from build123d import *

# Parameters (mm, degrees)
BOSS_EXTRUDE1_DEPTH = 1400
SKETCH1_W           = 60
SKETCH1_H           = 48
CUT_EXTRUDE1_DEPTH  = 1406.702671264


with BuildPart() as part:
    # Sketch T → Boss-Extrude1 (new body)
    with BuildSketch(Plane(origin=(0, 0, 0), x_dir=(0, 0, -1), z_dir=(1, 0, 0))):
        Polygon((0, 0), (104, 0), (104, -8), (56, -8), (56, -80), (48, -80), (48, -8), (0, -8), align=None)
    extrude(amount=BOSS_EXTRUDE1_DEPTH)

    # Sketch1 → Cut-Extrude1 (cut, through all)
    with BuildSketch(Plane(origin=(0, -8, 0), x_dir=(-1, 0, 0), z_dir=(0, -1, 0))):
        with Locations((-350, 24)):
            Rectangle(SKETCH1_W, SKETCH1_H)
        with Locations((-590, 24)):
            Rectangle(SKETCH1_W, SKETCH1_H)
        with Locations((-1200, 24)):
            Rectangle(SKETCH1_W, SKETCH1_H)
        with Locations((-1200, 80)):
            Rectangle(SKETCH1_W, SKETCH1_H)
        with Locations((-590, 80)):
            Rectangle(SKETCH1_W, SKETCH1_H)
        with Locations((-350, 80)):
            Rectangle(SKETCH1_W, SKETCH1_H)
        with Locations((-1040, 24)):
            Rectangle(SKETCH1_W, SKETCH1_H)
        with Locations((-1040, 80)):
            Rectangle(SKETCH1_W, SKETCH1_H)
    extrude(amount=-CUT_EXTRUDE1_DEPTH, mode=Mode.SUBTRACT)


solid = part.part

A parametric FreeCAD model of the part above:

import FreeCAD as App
import Part
import Sketcher

V = App.Vector
Q = App.Units.Quantity

doc = App.newDocument("Part")
params = doc.addObject("Spreadsheet::Sheet", "Params")
for row, (alias, value) in enumerate([
    ("sketch1_width", "8 mm"),
    ("sketch1_width2", "72 mm"),
    ("sketch1_height", "104 mm"),
    ("pad1_length", "1400 mm"),
    ("sketch2_width", "60 mm"),
    ("sketch2_height", "48 mm"),
], start=1):
    params.set(f"A{row}", alias)
    params.set(f"B{row}", "=" + value)
    params.setAlias(f"B{row}", alias)

body = doc.addObject("PartDesign::Body", "Body")

sketch1 = body.newObject("Sketcher::SketchObject", "Sketch")
sketch1.AttachmentSupport = (doc.getObject("YZ_Plane"), [""])
sketch1.MapMode = "FlatFace"
sketch1.addGeometry([
    Part.LineSegment(V(0, -104, 0), V(0, 0, 0)),
    Part.LineSegment(V(0, 0, 0), V(-8, 0, 0)),
    Part.LineSegment(V(-8, 0, 0), V(-8, -48, 0)),
    Part.LineSegment(V(-8, -48, 0), V(-80, -48, 0)),
    Part.LineSegment(V(-80, -48, 0), V(-80, -56, 0)),
    Part.LineSegment(V(-80, -56, 0), V(-8, -56, 0)),
    Part.LineSegment(V(-8, -56, 0), V(-8, -104, 0)),
    Part.LineSegment(V(-8, -104, 0), V(0, -104, 0)),
], False)
sketch1.addConstraint([
    Sketcher.Constraint("Coincident", 0, 2, 1, 1),
    Sketcher.Constraint("Coincident", 1, 2, 2, 1),
    Sketcher.Constraint("Coincident", 2, 2, 3, 1),
    Sketcher.Constraint("Coincident", 3, 2, 4, 1),
    Sketcher.Constraint("Coincident", 4, 2, 5, 1),
    Sketcher.Constraint("Coincident", 5, 2, 6, 1),
    Sketcher.Constraint("Coincident", 6, 2, 7, 1),
    Sketcher.Constraint("Coincident", 7, 2, 0, 1),
    Sketcher.Constraint("Vertical", 0),
    Sketcher.Constraint("Horizontal", 1),
    Sketcher.Constraint("Vertical", 2),
    Sketcher.Constraint("Horizontal", 3),
    Sketcher.Constraint("Vertical", 4),
    Sketcher.Constraint("Horizontal", 5),
    Sketcher.Constraint("Vertical", 6),
    Sketcher.Constraint("Horizontal", 7),
    Sketcher.Constraint("Coincident", 0, 2, -1, 1),
    Sketcher.Constraint("Vertical", 2, 2, 5, 2),
    Sketcher.Constraint("Equal", 7, 4),
    Sketcher.Constraint("Equal", 2, 6),
    Sketcher.Constraint("DistanceX", 1, 2, 1, 1, Q("8 mm")),
    Sketcher.Constraint("DistanceX", 3, 2, 3, 1, Q("72 mm")),
    Sketcher.Constraint("DistanceY", 0, 1, 0, 2, Q("104 mm")),
])
sketch1.setExpression("Constraints[20]", "Params.sketch1_width")
sketch1.setExpression("Constraints[21]", "Params.sketch1_width2")
sketch1.setExpression("Constraints[22]", "Params.sketch1_height")
pad1 = body.newObject("PartDesign::Pad", "Pad")
pad1.Profile = sketch1
pad1.setExpression("Length", "Params.pad1_length")

sketch2 = body.newObject("Sketcher::SketchObject", "Sketch001")
sketch2.AttachmentSupport = (doc.getObject("XZ_Plane"), [""])
sketch2.MapMode = "FlatFace"
sketch2.AttachmentOffset = App.Placement(V(0, 0, 8), App.Rotation())
sketch2.addGeometry([
    Part.LineSegment(V(380, -48, 0), V(380, 0, 0)),
    Part.LineSegment(V(380, 0, 0), V(320, 0, 0)),
    Part.LineSegment(V(320, 0, 0), V(320, -48, 0)),
    Part.LineSegment(V(320, -48, 0), V(380, -48, 0)),
    Part.LineSegment(V(620, -48, 0), V(620, 0, 0)),
    Part.LineSegment(V(620, 0, 0), V(560, 0, 0)),
    Part.LineSegment(V(560, 0, 0), V(560, -48, 0)),
    Part.LineSegment(V(560, -48, 0), V(620, -48, 0)),
    Part.LineSegment(V(1230, -48, 0), V(1230, 0, 0)),
    Part.LineSegment(V(1230, 0, 0), V(1170, 0, 0)),
    Part.LineSegment(V(1170, 0, 0), V(1170, -48, 0)),
    Part.LineSegment(V(1170, -48, 0), V(1230, -48, 0)),
    Part.LineSegment(V(1230, -104, 0), V(1230, -56, 0)),
    Part.LineSegment(V(1230, -56, 0), V(1170, -56, 0)),
    Part.LineSegment(V(1170, -56, 0), V(1170, -104, 0)),
    Part.LineSegment(V(1170, -104, 0), V(1230, -104, 0)),
    Part.LineSegment(V(620, -104, 0), V(620, -56, 0)),
    Part.LineSegment(V(620, -56, 0), V(560, -56, 0)),
    Part.LineSegment(V(560, -56, 0), V(560, -104, 0)),
    Part.LineSegment(V(560, -104, 0), V(620, -104, 0)),
    Part.LineSegment(V(380, -104, 0), V(380, -56, 0)),
    Part.LineSegment(V(380, -56, 0), V(320, -56, 0)),
    Part.LineSegment(V(320, -56, 0), V(320, -104, 0)),
    Part.LineSegment(V(320, -104, 0), V(380, -104, 0)),
    Part.LineSegment(V(1070, -48, 0), V(1070, 0, 0)),
    Part.LineSegment(V(1070, 0, 0), V(1010, 0, 0)),
    Part.LineSegment(V(1010, 0, 0), V(1010, -48, 0)),
    Part.LineSegment(V(1010, -48, 0), V(1070, -48, 0)),
    Part.LineSegment(V(1070, -104, 0), V(1070, -56, 0)),
    Part.LineSegment(V(1070, -56, 0), V(1010, -56, 0)),
    Part.LineSegment(V(1010, -56, 0), V(1010, -104, 0)),
    Part.LineSegment(V(1010, -104, 0), V(1070, -104, 0)),
], False)
sketch2.addConstraint([
    Sketcher.Constraint("Coincident", 0, 2, 1, 1),
    Sketcher.Constraint("Coincident", 1, 2, 2, 1),
    Sketcher.Constraint("Coincident", 2, 2, 3, 1),
    Sketcher.Constraint("Coincident", 3, 2, 0, 1),
    Sketcher.Constraint("Coincident", 4, 2, 5, 1),
    Sketcher.Constraint("Coincident", 5, 2, 6, 1),
    Sketcher.Constraint("Coincident", 6, 2, 7, 1),
    Sketcher.Constraint("Coincident", 7, 2, 4, 1),
    Sketcher.Constraint("Coincident", 8, 2, 9, 1),
    Sketcher.Constraint("Coincident", 9, 2, 10, 1),
    Sketcher.Constraint("Coincident", 10, 2, 11, 1),
    Sketcher.Constraint("Coincident", 11, 2, 8, 1),
    Sketcher.Constraint("Coincident", 12, 2, 13, 1),
    Sketcher.Constraint("Coincident", 13, 2, 14, 1),
    Sketcher.Constraint("Coincident", 14, 2, 15, 1),
    Sketcher.Constraint("Coincident", 15, 2, 12, 1),
    Sketcher.Constraint("Coincident", 16, 2, 17, 1),
    Sketcher.Constraint("Coincident", 17, 2, 18, 1),
    Sketcher.Constraint("Coincident", 18, 2, 19, 1),
    Sketcher.Constraint("Coincident", 19, 2, 16, 1),
    Sketcher.Constraint("Coincident", 20, 2, 21, 1),
    Sketcher.Constraint("Coincident", 21, 2, 22, 1),
    Sketcher.Constraint("Coincident", 22, 2, 23, 1),
    Sketcher.Constraint("Coincident", 23, 2, 20, 1),
    Sketcher.Constraint("Coincident", 24, 2, 25, 1),
    Sketcher.Constraint("Coincident", 25, 2, 26, 1),
    Sketcher.Constraint("Coincident", 26, 2, 27, 1),
    Sketcher.Constraint("Coincident", 27, 2, 24, 1),
    Sketcher.Constraint("Coincident", 28, 2, 29, 1),
    Sketcher.Constraint("Coincident", 29, 2, 30, 1),
    Sketcher.Constraint("Coincident", 30, 2, 31, 1),
    Sketcher.Constraint("Coincident", 31, 2, 28, 1),
    Sketcher.Constraint("Vertical", 0),
    Sketcher.Constraint("Horizontal", 1),
    Sketcher.Constraint("Vertical", 2),
    Sketcher.Constraint("Horizontal", 3),
    Sketcher.Constraint("Vertical", 4),
    Sketcher.Constraint("Horizontal", 5),
    Sketcher.Constraint("Vertical", 6),
    Sketcher.Constraint("Horizontal", 7),
    Sketcher.Constraint("Vertical", 8),
    Sketcher.Constraint("Horizontal", 9),
    Sketcher.Constraint("Vertical", 10),
    Sketcher.Constraint("Horizontal", 11),
    Sketcher.Constraint("Vertical", 12),
    Sketcher.Constraint("Horizontal", 13),
    Sketcher.Constraint("Vertical", 14),
    Sketcher.Constraint("Horizontal", 15),
    Sketcher.Constraint("Vertical", 16),
    Sketcher.Constraint("Horizontal", 17),
    Sketcher.Constraint("Vertical", 18),
    Sketcher.Constraint("Horizontal", 19),
    Sketcher.Constraint("Vertical", 20),
    Sketcher.Constraint("Horizontal", 21),
    Sketcher.Constraint("Vertical", 22),
    Sketcher.Constraint("Horizontal", 23),
    Sketcher.Constraint("Vertical", 24),
    Sketcher.Constraint("Horizontal", 25),
    Sketcher.Constraint("Vertical", 26),
    Sketcher.Constraint("Horizontal", 27),
    Sketcher.Constraint("Vertical", 28),
    Sketcher.Constraint("Horizontal", 29),
    Sketcher.Constraint("Vertical", 30),
    Sketcher.Constraint("Horizontal", 31),
    Sketcher.Constraint("PointOnObject", 0, 2, -1),
    Sketcher.Constraint("PointOnObject", 4, 2, -1),
    Sketcher.Constraint("PointOnObject", 8, 2, -1),
    Sketcher.Constraint("PointOnObject", 24, 2, -1),
    Sketcher.Constraint("Horizontal", 3, 2, 6, 2),
    Sketcher.Constraint("Horizontal", 7, 2, 10, 2),
    Sketcher.Constraint("Horizontal", 13, 2, 16, 2),
    Sketcher.Constraint("Horizontal", 15, 2, 18, 2),
    Sketcher.Constraint("Horizontal", 17, 2, 20, 2),
    Sketcher.Constraint("Horizontal", 19, 2, 22, 2),
    Sketcher.Constraint("Horizontal", 11, 2, 26, 2),
    Sketcher.Constraint("Horizontal", 21, 2, 28, 2),
    Sketcher.Constraint("Horizontal", 23, 2, 30, 2),
    Sketcher.Constraint("Vertical", 11, 2, 12, 2),
    Sketcher.Constraint("Vertical", 10, 2, 13, 2),
    Sketcher.Constraint("Vertical", 7, 2, 16, 2),
    Sketcher.Constraint("Vertical", 6, 2, 17, 2),
    Sketcher.Constraint("Vertical", 3, 2, 20, 2),
    Sketcher.Constraint("Vertical", 2, 2, 21, 2),
    Sketcher.Constraint("Vertical", 27, 2, 28, 2),
    Sketcher.Constraint("Vertical", 26, 2, 29, 2),
    Sketcher.Constraint("Equal", 3, 5),
    Sketcher.Constraint("Equal", 7, 9),
    Sketcher.Constraint("Equal", 23, 25),
    Sketcher.Constraint("Equal", 10, 12),
    Sketcher.Constraint("DistanceX", 1, 2, 1, 1, Q("60 mm")),
    Sketcher.Constraint("DistanceY", 0, 1, 0, 2, Q("48 mm")),
    Sketcher.Constraint("DistanceX", -1, 1, 0, 2, Q("380 mm")),
    Sketcher.Constraint("DistanceX", -1, 1, 4, 2, Q("620 mm")),
    Sketcher.Constraint("DistanceX", -1, 1, 8, 2, Q("1230 mm")),
    Sketcher.Constraint("DistanceY", 12, 2, -1, 1, Q("56 mm")),
    Sketcher.Constraint("DistanceX", -1, 1, 24, 2, Q("1070 mm")),
])
sketch2.setExpression("Constraints[89]", "Params.sketch2_width")
sketch2.setExpression("Constraints[90]", "Params.sketch2_height")
pocket1 = body.newObject("PartDesign::Pocket", "Pocket")
pocket1.Profile = sketch2
pocket1.Type = "ThroughAll"

doc.recompute()
